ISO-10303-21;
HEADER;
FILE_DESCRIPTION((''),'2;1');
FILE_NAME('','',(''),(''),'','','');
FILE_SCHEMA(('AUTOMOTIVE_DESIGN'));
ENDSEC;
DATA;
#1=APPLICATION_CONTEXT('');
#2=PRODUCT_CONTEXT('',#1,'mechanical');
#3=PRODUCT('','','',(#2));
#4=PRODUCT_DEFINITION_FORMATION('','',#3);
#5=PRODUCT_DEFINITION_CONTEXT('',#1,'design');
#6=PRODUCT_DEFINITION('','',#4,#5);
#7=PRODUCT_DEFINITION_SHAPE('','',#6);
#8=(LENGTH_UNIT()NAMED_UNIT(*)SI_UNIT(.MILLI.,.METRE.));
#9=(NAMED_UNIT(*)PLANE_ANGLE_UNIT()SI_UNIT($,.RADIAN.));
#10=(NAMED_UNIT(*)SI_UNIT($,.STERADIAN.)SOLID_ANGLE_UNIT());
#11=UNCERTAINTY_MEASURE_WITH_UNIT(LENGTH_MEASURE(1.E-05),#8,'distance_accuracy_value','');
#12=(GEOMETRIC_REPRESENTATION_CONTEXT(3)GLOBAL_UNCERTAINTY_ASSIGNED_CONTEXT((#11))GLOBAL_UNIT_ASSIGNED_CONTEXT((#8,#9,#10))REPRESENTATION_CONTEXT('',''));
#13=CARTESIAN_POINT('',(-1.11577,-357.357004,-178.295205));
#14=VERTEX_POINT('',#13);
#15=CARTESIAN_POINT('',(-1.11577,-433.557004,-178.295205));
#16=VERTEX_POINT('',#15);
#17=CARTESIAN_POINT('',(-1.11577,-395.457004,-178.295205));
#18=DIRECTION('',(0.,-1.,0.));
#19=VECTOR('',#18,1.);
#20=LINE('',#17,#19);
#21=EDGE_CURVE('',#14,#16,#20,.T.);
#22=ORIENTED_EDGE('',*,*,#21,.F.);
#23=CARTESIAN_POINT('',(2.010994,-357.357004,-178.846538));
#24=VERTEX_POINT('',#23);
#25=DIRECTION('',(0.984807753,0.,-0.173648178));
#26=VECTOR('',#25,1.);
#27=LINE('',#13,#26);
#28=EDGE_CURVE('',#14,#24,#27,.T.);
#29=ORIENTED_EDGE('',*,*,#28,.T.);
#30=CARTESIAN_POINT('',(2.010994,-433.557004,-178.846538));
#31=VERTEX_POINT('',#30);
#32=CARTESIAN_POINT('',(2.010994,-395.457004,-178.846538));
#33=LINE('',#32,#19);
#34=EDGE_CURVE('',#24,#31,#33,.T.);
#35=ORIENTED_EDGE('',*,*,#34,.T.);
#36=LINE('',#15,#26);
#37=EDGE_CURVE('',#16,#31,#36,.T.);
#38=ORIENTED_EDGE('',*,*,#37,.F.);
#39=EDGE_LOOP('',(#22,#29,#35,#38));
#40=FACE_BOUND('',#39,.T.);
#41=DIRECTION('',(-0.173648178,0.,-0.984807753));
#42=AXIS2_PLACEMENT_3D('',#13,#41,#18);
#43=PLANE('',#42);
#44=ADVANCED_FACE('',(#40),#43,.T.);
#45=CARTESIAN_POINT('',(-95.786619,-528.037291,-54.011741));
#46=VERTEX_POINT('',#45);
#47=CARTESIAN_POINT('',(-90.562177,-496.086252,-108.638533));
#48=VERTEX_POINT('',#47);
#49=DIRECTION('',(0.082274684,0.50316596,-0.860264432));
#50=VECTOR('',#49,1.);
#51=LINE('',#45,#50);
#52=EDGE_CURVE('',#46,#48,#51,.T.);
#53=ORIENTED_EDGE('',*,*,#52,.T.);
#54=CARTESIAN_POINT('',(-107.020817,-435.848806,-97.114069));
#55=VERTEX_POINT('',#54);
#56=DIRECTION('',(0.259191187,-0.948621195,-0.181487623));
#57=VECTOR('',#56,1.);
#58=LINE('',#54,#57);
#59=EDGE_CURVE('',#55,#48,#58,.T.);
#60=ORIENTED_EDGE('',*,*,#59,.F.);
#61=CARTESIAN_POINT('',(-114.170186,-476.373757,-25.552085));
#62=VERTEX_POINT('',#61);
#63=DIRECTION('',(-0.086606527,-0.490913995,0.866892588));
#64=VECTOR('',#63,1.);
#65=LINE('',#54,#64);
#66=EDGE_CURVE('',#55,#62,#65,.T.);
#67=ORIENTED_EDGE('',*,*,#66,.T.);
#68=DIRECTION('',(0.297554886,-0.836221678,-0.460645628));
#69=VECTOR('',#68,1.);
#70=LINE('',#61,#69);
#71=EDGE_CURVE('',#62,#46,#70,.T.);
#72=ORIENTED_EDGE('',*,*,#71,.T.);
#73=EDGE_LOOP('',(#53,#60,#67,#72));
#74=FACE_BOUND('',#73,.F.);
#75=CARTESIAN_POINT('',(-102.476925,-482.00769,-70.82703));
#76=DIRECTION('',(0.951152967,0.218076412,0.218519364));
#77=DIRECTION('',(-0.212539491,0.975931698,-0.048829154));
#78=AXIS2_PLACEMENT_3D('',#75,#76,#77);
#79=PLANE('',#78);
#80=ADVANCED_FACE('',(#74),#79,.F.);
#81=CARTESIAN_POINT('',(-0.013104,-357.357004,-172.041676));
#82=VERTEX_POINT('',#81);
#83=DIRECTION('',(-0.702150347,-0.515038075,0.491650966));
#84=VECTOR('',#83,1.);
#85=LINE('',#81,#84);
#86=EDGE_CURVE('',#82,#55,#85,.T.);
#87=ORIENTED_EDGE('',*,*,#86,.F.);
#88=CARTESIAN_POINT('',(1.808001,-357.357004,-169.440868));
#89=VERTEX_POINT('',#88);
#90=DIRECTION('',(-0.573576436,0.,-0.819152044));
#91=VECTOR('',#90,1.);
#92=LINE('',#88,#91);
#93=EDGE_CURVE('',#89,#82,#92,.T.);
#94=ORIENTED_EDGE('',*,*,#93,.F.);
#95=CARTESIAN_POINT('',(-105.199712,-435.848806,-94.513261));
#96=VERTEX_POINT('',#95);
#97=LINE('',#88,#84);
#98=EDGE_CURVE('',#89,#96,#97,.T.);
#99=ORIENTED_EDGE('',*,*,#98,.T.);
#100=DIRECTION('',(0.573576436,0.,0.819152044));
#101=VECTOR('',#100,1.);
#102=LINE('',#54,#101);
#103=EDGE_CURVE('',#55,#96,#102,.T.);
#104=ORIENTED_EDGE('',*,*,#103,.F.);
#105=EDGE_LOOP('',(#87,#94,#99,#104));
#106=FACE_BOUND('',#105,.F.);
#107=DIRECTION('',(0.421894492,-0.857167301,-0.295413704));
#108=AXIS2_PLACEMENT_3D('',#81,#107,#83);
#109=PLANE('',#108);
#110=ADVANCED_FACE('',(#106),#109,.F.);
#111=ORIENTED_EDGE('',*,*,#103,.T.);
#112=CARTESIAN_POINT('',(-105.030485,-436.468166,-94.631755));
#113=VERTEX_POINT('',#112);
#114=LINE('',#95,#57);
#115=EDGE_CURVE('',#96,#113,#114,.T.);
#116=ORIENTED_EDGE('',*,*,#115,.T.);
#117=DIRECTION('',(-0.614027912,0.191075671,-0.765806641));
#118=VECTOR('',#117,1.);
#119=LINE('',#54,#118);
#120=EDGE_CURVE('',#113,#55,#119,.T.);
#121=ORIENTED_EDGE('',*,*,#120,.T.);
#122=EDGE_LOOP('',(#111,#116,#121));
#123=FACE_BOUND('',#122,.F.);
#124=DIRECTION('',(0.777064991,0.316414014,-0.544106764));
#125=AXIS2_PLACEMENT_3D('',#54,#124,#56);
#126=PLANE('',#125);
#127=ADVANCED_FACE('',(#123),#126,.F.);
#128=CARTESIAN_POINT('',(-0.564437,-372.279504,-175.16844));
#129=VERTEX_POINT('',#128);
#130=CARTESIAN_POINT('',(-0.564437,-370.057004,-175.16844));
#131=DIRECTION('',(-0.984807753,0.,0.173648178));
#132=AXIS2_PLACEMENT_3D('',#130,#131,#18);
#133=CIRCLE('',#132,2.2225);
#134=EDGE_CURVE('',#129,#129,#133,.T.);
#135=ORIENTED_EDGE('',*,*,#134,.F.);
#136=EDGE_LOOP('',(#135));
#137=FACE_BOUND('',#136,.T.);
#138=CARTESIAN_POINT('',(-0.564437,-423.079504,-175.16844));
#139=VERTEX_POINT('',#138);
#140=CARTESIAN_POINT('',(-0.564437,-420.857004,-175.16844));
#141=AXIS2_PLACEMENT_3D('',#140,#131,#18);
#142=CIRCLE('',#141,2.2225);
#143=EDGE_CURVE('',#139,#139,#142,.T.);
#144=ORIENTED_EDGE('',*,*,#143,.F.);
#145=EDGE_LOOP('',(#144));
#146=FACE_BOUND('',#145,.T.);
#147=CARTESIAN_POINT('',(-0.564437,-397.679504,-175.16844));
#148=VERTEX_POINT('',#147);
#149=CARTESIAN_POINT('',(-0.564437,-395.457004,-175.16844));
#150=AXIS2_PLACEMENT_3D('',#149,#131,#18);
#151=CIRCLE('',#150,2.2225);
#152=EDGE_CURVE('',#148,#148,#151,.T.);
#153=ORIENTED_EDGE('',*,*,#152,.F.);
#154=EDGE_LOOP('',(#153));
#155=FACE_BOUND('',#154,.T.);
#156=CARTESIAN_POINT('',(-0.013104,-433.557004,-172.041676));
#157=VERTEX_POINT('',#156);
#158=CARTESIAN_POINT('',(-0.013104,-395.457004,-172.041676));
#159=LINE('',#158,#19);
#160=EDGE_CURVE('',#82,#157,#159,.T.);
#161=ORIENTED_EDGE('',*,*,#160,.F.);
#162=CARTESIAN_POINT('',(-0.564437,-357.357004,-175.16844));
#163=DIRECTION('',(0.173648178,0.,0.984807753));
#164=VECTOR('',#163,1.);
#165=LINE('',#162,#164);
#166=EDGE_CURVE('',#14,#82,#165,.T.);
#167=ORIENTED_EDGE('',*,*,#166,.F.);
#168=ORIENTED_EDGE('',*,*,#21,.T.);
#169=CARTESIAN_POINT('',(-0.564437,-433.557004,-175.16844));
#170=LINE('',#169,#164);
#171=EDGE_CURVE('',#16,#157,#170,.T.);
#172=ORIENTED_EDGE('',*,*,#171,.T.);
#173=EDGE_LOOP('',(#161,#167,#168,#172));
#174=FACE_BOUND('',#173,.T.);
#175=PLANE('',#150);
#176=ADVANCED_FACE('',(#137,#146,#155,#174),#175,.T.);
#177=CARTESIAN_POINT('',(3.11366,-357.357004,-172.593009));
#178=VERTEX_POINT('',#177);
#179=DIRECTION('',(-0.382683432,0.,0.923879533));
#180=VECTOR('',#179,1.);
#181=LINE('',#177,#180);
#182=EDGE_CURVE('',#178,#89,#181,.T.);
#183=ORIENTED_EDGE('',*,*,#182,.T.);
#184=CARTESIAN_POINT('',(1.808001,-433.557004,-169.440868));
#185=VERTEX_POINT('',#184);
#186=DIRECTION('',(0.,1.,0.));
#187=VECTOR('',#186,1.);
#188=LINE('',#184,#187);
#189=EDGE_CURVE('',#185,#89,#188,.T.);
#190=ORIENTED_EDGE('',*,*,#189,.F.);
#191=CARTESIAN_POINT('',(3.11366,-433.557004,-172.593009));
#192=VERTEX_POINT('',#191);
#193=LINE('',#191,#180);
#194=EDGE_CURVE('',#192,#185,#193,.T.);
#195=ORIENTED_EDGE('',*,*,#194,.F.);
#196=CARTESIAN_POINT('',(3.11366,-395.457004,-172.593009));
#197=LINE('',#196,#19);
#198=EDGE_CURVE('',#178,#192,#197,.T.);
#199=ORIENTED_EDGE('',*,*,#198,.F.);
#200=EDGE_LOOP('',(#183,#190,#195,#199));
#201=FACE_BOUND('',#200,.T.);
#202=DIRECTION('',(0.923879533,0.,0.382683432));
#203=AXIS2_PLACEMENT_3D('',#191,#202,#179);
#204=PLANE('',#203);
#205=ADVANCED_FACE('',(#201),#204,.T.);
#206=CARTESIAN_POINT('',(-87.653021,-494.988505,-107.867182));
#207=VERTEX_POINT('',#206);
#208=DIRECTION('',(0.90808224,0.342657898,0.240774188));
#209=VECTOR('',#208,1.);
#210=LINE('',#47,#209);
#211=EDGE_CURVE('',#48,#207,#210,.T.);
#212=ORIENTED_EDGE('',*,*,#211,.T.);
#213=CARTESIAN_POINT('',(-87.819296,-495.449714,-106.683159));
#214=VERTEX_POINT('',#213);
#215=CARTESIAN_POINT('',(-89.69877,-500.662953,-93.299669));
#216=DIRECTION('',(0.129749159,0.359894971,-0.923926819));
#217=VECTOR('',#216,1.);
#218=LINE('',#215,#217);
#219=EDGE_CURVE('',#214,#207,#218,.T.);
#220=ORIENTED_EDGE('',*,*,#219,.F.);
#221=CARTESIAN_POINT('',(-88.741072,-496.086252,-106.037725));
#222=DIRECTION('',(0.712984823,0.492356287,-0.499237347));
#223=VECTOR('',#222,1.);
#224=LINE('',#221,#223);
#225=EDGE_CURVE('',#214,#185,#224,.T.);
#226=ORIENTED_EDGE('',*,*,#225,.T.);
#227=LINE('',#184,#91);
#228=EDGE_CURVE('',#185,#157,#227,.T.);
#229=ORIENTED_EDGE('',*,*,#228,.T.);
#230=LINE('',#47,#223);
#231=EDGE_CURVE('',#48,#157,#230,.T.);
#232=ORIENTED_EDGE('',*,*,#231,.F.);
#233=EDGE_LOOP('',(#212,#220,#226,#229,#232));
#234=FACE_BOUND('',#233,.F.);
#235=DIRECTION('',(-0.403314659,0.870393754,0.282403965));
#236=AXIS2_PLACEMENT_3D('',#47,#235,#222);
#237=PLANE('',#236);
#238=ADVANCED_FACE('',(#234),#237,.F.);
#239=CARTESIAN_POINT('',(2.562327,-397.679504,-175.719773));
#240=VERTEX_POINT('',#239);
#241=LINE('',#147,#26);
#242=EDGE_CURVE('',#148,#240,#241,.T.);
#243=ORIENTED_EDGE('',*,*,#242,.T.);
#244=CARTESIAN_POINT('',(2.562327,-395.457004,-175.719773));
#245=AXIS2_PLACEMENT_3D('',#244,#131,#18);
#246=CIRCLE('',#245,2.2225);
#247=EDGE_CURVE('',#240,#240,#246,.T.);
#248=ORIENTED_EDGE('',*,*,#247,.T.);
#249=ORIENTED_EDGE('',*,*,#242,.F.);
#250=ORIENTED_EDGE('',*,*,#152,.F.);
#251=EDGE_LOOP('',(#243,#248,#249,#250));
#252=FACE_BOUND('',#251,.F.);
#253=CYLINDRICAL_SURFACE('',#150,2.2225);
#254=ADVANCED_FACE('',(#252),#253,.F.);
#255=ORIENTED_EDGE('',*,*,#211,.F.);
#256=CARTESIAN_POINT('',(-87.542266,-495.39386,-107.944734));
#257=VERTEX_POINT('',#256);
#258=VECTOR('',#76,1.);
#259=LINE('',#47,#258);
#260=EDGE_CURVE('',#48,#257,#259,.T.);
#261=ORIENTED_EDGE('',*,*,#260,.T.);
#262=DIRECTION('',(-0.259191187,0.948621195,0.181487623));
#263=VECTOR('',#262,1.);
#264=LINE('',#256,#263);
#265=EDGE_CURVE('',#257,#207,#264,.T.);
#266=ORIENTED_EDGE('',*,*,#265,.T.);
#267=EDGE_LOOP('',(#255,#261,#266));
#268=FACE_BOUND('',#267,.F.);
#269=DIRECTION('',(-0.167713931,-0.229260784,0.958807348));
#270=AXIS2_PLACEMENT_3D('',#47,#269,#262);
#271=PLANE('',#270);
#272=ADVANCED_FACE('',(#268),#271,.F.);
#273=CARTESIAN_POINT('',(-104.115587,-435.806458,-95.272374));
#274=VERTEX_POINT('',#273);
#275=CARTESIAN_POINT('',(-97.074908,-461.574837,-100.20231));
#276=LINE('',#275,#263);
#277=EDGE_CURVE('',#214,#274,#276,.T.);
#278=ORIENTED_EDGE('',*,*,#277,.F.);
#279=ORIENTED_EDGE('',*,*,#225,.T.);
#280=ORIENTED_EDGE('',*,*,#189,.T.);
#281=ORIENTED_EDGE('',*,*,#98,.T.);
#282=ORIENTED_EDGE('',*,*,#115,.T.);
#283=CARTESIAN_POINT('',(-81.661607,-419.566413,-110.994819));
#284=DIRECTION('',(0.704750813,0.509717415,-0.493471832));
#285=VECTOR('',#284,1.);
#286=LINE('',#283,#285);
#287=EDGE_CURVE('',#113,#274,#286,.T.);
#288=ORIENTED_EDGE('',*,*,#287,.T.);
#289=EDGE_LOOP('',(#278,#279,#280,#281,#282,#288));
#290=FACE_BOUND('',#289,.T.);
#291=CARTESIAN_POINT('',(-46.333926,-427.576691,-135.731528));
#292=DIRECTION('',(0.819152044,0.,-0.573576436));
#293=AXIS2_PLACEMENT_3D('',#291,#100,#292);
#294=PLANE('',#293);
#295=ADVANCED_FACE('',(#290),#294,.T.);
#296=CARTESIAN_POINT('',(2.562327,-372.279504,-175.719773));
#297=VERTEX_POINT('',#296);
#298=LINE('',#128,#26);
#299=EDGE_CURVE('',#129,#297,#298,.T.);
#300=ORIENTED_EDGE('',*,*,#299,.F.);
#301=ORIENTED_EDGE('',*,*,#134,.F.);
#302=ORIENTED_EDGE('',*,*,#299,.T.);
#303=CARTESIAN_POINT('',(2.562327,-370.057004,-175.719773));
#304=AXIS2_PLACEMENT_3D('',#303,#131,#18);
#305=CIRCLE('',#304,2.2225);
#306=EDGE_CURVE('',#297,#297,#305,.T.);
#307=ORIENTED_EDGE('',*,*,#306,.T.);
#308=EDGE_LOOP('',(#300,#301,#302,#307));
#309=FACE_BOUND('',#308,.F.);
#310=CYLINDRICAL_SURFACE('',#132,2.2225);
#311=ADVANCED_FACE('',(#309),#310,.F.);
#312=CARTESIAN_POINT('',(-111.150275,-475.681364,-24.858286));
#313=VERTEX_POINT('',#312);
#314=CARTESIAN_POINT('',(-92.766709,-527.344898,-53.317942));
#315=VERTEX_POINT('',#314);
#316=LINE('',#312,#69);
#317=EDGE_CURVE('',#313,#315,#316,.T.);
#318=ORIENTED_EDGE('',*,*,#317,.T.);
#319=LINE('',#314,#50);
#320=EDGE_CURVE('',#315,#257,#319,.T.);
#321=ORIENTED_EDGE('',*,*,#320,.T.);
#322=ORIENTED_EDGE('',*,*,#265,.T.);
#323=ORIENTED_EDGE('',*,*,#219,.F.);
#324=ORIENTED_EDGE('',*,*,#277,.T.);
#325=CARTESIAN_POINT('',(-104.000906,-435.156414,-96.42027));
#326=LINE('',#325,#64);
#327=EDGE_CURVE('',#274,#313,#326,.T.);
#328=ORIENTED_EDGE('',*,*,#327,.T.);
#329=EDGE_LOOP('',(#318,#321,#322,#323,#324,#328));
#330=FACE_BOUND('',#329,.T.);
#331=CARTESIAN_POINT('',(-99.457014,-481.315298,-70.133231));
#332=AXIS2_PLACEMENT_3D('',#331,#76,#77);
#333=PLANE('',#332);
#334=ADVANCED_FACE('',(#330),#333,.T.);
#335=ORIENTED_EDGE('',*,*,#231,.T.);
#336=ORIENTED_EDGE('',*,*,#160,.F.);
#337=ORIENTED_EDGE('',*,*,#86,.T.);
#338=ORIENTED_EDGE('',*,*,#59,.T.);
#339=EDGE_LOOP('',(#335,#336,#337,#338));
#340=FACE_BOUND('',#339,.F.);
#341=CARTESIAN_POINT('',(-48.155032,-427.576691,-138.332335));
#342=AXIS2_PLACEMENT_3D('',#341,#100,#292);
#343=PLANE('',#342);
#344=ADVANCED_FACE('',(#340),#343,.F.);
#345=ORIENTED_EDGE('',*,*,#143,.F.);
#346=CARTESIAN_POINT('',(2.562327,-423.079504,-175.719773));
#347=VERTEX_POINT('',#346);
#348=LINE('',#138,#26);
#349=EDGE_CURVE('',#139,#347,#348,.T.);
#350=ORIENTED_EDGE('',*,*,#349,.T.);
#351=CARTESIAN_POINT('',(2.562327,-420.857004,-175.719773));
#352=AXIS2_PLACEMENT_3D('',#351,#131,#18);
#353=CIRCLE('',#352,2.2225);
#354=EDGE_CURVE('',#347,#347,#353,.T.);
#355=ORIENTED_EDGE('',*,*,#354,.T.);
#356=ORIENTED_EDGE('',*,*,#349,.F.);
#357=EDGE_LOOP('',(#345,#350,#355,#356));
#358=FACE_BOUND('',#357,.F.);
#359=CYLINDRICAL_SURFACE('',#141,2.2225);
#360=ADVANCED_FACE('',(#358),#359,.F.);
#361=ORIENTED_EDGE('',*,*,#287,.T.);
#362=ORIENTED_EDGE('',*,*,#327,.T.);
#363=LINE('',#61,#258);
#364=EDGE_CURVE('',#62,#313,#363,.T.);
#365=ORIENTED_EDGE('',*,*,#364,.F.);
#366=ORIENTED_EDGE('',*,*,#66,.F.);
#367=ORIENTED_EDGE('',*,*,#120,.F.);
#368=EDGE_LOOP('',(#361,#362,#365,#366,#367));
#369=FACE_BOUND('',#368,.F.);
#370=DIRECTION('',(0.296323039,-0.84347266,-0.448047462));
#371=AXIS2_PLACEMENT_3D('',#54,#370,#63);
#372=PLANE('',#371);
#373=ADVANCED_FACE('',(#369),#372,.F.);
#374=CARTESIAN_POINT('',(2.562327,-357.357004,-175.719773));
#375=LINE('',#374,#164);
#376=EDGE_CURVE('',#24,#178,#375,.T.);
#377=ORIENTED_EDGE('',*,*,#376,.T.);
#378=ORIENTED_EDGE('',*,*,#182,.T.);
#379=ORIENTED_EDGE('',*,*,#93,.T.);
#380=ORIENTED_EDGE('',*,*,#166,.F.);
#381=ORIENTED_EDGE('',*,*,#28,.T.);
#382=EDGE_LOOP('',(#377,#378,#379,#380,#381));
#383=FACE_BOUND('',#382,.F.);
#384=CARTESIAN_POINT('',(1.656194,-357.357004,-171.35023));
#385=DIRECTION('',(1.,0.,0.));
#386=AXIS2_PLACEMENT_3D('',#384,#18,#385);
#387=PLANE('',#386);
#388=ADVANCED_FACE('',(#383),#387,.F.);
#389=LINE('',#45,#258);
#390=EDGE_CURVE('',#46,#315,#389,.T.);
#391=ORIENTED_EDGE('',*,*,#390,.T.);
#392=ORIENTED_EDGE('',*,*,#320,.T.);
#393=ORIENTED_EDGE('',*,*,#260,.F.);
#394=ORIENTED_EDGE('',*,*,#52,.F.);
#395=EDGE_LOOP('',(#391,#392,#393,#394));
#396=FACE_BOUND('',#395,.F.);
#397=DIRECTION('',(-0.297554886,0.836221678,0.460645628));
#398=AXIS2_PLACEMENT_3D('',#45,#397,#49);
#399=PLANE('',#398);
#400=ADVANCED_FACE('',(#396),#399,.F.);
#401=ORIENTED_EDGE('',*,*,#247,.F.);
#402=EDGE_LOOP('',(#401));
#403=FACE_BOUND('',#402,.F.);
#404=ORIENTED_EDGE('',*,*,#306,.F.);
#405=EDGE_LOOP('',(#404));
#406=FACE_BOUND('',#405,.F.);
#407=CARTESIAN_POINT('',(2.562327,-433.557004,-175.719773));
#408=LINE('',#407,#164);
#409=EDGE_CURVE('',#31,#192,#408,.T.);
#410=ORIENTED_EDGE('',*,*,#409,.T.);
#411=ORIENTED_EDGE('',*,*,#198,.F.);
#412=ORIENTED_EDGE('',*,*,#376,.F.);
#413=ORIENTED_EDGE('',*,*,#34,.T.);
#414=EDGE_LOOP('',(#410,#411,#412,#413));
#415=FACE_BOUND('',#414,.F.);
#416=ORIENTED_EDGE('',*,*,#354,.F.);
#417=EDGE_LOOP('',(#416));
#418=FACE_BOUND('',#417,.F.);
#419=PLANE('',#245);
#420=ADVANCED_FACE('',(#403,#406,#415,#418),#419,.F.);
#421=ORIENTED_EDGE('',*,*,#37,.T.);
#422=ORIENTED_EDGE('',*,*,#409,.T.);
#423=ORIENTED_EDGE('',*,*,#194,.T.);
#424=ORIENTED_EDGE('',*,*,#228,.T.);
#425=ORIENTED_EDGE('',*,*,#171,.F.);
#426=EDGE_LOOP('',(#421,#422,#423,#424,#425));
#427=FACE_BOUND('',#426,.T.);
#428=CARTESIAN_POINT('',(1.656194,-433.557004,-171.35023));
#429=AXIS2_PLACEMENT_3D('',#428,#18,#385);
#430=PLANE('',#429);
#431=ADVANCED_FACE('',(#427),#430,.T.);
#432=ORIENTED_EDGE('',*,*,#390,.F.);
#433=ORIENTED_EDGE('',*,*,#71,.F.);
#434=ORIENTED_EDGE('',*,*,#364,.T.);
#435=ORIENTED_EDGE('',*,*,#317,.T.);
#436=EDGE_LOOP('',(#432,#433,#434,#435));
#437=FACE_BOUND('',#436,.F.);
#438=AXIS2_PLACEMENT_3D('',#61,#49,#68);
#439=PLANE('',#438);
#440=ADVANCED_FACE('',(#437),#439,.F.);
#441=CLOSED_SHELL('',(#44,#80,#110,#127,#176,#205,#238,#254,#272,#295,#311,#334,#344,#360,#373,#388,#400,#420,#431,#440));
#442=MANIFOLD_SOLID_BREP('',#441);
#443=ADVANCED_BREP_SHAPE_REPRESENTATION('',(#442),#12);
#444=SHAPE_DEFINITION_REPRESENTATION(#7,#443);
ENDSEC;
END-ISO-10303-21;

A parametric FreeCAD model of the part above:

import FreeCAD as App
import Part
import Sketcher
Q = App.Units.Quantity


def add_polygon(sketch, points):
    """Adds a closed chain of lines whose ends are joined by coincident constraints."""
    first, n = sketch.GeometryCount, len(points)
    for a, b in zip(points, points[1:] + points[:1]):
        sketch.addGeometry(Part.LineSegment(App.Vector(*a, 0), App.Vector(*b, 0)), False)
    for i in range(n):
        sketch.addConstraint(Sketcher.Constraint("Coincident", first + i, 2, first + (i + 1) % n, 1))

doc = App.newDocument("Part")
body = doc.addObject("PartDesign::Body", "Body")

# Sketch on an angled plane
sketch1 = doc.addObject("Sketcher::SketchObject", "Sketch")
body.addObject(sketch1)
sketch1.Placement = App.Placement(App.Vector(29.40815, 0, -5.18545), App.Rotation(App.Vector(0, -1, 0), App.Vector(0.173648178, 0, 0.984807753), App.Vector(-0.984807753, 0, 0.173648178), "ZXY"))
add_polygon(sketch1, [(357.4, -169.4), (357.4, -175.8), (433.6, -175.8), (433.6, -169.4)])  # lines 0-3
sketch1.addGeometry(Part.Circle(App.Vector(370.1, -172.6, 0), App.Vector(0, 0, 1), 2.2), False)  # 4
sketch1.addGeometry(Part.Circle(App.Vector(395.5, -172.6, 0), App.Vector(0, 0, 1), 2.2), False)  # 5
sketch1.addGeometry(Part.Circle(App.Vector(420.9, -172.6, 0), App.Vector(0, 0, 1), 2.2), False)  # 6
sketch1.addConstraint(Sketcher.Constraint("Vertical", 0))
sketch1.addConstraint(Sketcher.Constraint("Horizontal", 1))
sketch1.addConstraint(Sketcher.Constraint("Vertical", 2))
sketch1.addConstraint(Sketcher.Constraint("Horizontal", 3))
sketch1.addConstraint(Sketcher.Constraint("Equal", 4, 5))
sketch1.addConstraint(Sketcher.Constraint("Equal", 5, 6))
sketch1.addConstraint(Sketcher.Constraint("Horizontal", 4, 3, 5, 3))
sketch1.addConstraint(Sketcher.Constraint("Horizontal", 5, 3, 6, 3))
sketch1.addConstraint(Sketcher.Constraint("DistanceX", 1, 1, 1, 2, Q("3 in")))
sketch1.addConstraint(Sketcher.Constraint("Diameter", 4, Q("0.175 in")))
sketch1.addConstraint(Sketcher.Constraint("DistanceX", 4, 3, 5, 3, Q("1 in")))
sketch1.addConstraint(Sketcher.Constraint("DistanceX", 5, 3, 6, 3, Q("1 in")))
sketch1.addConstraint(Sketcher.Constraint("DistanceY", 0, 2, 0, 1, Q("0.25 in")))
sketch1.addConstraint(Sketcher.Constraint("DistanceX", 0, 2, 4, 3, Q("0.5 in")))
sketch1.addConstraint(Sketcher.Constraint("DistanceY", 0, 2, 4, 3, Q("0.125 in")))
sketch1.addConstraint(Sketcher.Constraint("DistanceY", 4, 3, -1, 1, Q("172.605252 mm")))
sketch1.addConstraint(Sketcher.Constraint("DistanceX", -1, 1, 4, 3, Q("370.057004 mm")))
pad1 = doc.addObject("PartDesign::Pad", "Pad")
body.addObject(pad1)
pad1.Profile = sketch1
pad1.Length = Q("0.125 in")
pad1.Reversed = True

# Sketch on XZ plane
sketch2 = doc.addObject("Sketcher::SketchObject", "Sketch001")
body.addObject(sketch2)
sketch2.AttachmentSupport = (doc.XZ_Plane, [""])
sketch2.MapMode = "FlatFace"
sketch2.AttachmentOffset = App.Placement(App.Vector(0, 0, 433.557004), App.Rotation())
add_polygon(sketch2, [(1.8, -169.4), (0, -172), (3.1, -172.6)])  # lines 0-2
sketch2.addConstraint(Sketcher.Constraint("Equal", 0, 1))
sketch2.addConstraint(Sketcher.Constraint("Angle", 0, Q("-125 deg")))
sketch2.addConstraint(Sketcher.Constraint("Angle", 1, Q("-10 deg")))
sketch2.addConstraint(Sketcher.Constraint("Distance", 0, Q("0.125 in")))
sketch2.addConstraint(Sketcher.Constraint("DistanceX", -1, 1, 2, 2, Q("1.808001 mm")))
sketch2.addConstraint(Sketcher.Constraint("DistanceY", 1, 2, -1, 1, Q("172.593009 mm")))
pad2 = doc.addObject("PartDesign::Pad", "Pad001")
body.addObject(pad2)
pad2.Profile = sketch2
pad2.Length = Q("3 in")
pad2.Reversed = True

# Sketch on an angled plane
sketch3 = doc.addObject("Sketcher::SketchObject", "Sketch002")
body.addObject(sketch3)
sketch3.Placement = App.Placement(App.Vector(-80.837458, 0, -115.447854), App.Rotation(App.Vector(0.819152044, 0, -0.573576436), App.Vector(0, 0.999999999, 0), App.Vector(0.573576436, 0, 0.819152044), "ZXY"))
add_polygon(sketch3, [(99, -434), (99, -357), (-32, -436), (-12, -496)])  # lines 0-3
sketch3.addConstraint(Sketcher.Constraint("Vertical", 0))
sketch3.addConstraint(Sketcher.Constraint("DistanceY", 0, 1, 0, 2, Q("3 in")))
sketch3.addConstraint(Sketcher.Constraint("Distance", 1, Q("6 in")))
sketch3.addConstraint(Sketcher.Constraint("Distance", 3, Q("5 in")))
sketch3.addConstraint(Sketcher.Constraint("Angle", 1, Q("-149 deg")))
sketch3.addConstraint(Sketcher.Constraint("Distance", 2, Q("2.5 in")))
sketch3.addConstraint(Sketcher.Constraint("DistanceX", 1, 2, -1, 1, Q("31.96398 mm")))
sketch3.addConstraint(Sketcher.Constraint("DistanceY", 2, 2, -1, 1, Q("496.086251 mm")))
pad3 = doc.addObject("PartDesign::Pad", "Pad002")
body.addObject(pad3)
pad3.Profile = sketch3
pad3.Length = Q("0.125 in")

# Sketch on an angled plane
sketch4 = doc.addObject("Sketcher::SketchObject", "Sketch003")
body.addObject(sketch4)
sketch4.Placement = App.Placement(App.Vector(-207.411094, -47.554356, -47.650948), App.Rotation(App.Vector(-0.212539491, 0.975931698, -0.048829154), App.Vector(-0.223908461, 0, 0.97461018), App.Vector(0.951152967, 0.218076412, 0.218519364), "ZXY"))
add_polygon(sketch4, [(-492, -31), (-460, -86), (-398, -71), (-439, 1)])  # lines 0-3
sketch4.addConstraint(Sketcher.Constraint("Perpendicular", 0, 3))
sketch4.addConstraint(Sketcher.Constraint("Equal", 0, 1))
sketch4.addConstraint(Sketcher.Constraint("Distance", 0, Q("2.5 in")))
sketch4.addConstraint(Sketcher.Constraint("Distance", 2, Q("3.25 in")))
sketch4.addConstraint(Sketcher.Constraint("DistanceX", 1, 2, -1, 1, Q("397.870518 mm")))
sketch4.addConstraint(Sketcher.Constraint("DistanceX", 2, 2, -1, 1, Q("439.394889 mm")))
sketch4.addConstraint(Sketcher.Constraint("DistanceY", -1, 1, 2, 2, Q("0.660348 mm")))
sketch4.addConstraint(Sketcher.Constraint("DistanceY", 3, 2, -1, 1, Q("31.192958 mm")))
pad4 = doc.addObject("PartDesign::Pad", "Pad003")
body.addObject(pad4)
pad4.Profile = sketch4
pad4.Length = Q("0.125 in")

doc.recompute()
